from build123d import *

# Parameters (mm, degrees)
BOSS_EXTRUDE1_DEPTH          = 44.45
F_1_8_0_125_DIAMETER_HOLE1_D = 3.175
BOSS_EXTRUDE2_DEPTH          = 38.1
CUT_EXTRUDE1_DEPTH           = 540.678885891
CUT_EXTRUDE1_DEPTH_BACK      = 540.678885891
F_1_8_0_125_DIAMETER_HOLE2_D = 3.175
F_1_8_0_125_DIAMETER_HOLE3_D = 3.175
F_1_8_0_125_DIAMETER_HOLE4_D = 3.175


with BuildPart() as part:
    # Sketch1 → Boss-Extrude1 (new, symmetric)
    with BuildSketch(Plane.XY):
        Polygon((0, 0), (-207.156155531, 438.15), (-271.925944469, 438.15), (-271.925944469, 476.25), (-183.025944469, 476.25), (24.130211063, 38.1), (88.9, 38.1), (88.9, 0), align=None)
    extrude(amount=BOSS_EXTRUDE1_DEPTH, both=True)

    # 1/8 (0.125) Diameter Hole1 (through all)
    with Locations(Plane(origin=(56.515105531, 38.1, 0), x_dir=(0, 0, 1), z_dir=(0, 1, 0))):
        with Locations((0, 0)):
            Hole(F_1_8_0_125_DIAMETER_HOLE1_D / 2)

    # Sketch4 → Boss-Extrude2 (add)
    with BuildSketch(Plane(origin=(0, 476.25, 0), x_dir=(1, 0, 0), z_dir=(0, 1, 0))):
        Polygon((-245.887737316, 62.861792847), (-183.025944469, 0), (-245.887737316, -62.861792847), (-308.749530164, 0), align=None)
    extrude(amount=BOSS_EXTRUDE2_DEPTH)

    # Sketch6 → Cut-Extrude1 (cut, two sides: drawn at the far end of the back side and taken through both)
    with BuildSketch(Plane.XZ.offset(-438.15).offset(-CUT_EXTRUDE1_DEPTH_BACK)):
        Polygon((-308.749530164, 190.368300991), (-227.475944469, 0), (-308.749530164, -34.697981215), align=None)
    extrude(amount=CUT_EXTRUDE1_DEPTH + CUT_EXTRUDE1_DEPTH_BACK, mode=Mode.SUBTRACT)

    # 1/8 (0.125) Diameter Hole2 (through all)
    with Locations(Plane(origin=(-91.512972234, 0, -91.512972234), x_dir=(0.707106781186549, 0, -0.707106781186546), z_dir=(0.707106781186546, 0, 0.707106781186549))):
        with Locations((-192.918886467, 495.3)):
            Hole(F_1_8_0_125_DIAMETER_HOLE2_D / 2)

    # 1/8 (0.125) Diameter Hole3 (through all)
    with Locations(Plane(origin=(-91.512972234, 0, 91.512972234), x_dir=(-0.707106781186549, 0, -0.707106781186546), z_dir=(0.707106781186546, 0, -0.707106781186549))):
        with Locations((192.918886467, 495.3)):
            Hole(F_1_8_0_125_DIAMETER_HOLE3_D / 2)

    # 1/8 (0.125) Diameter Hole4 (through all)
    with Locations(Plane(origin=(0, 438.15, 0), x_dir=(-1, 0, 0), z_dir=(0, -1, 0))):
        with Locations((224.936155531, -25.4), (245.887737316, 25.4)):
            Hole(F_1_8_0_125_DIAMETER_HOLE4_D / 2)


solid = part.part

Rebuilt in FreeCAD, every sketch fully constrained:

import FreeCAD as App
import Part
import Sketcher
Q = App.Units.Quantity

doc = App.newDocument("Part")
params = doc.addObject("Spreadsheet::Sheet", "Params")
for row, (alias, value) in enumerate([
    ("sketch1_width", "3.5 in"),
    ("sketch1_height", "1.5 in"),
    ("pad1_length", "3.5 in"),
    ("sketch2_diameter", "0.125 in"),
    ("hole_diameter", "0.125 in"),
    ("sketch3_length", "3.5 in"),
    ("pad2_length", "1.5 in"),
    ("sketch5_diameter", "0.125 in"),
    ("hole2_diameter", "0.125 in"),
    ("sketch6_diameter", "0.125 in"),
    ("hole3_diameter", "0.125 in"),
    ("sketch7_diameter", "0.125 in"),
    ("hole4_diameter", "0.125 in"),
], start=1):
    params.set(f"A{row}", alias)
    params.set(f"B{row}", "=" + value)
    params.setAlias(f"B{row}", alias)

body = doc.addObject("PartDesign::Body", "Body")

sketch1 = body.newObject("Sketcher::SketchObject", "Sketch")
sketch1.AttachmentSupport = (doc.getObject("XY_Plane"), [""])
sketch1.MapMode = "FlatFace"
sketch1.addGeometry([
    Part.LineSegment(App.Vector(-207, 438, 0), App.Vector(0, 0, 0)),
    Part.LineSegment(App.Vector(0, 0, 0), App.Vector(89, 0, 0)),
    Part.LineSegment(App.Vector(89, 0, 0), App.Vector(89, 38, 0)),
    Part.LineSegment(App.Vector(89, 38, 0), App.Vector(24, 38, 0)),
    Part.LineSegment(App.Vector(24, 38, 0), App.Vector(-183, 476, 0)),
    Part.LineSegment(App.Vector(-183, 476, 0), App.Vector(-272, 476, 0)),
    Part.LineSegment(App.Vector(-272, 476, 0), App.Vector(-272, 438, 0)),
    Part.LineSegment(App.Vector(-272, 438, 0), App.Vector(-207, 438, 0)),
], False)
sketch1.addConstraint([
    Sketcher.Constraint("Coincident", 0, 2, 1, 1),
    Sketcher.Constraint("Coincident", 1, 2, 2, 1),
    Sketcher.Constraint("Coincident", 2, 2, 3, 1),
    Sketcher.Constraint("Coincident", 3, 2, 4, 1),
    Sketcher.Constraint("Coincident", 4, 2, 5, 1),
    Sketcher.Constraint("Coincident", 5, 2, 6, 1),
    Sketcher.Constraint("Coincident", 6, 2, 7, 1),
    Sketcher.Constraint("Coincident", 7, 2, 0, 1),
    Sketcher.Constraint("Horizontal", 1),
    Sketcher.Constraint("Vertical", 2),
    Sketcher.Constraint("Horizontal", 3),
    Sketcher.Constraint("Horizontal", 5),
    Sketcher.Constraint("Vertical", 6),
    Sketcher.Constraint("Horizontal", 7),
    Sketcher.Constraint("Coincident", 0, 2, -1, 1),
    Sketcher.Constraint("Parallel", 0, 4),
    Sketcher.Constraint("Equal", 1, 5),
    Sketcher.Constraint("Equal", 3, 7),
    Sketcher.Constraint("DistanceX", 1, 1, 1, 2, Q("3.5 in")),
    Sketcher.Constraint("DistanceY", 2, 1, 2, 2, Q("1.5 in")),
    Sketcher.Constraint("DistanceY", -1, 1, 4, 2, Q("18.75 in")),
    Sketcher.Constraint("DistanceX", 3, 2, 3, 1, Q("64.769789 mm")),
    Sketcher.Constraint("Distance", 0, Q("484.653583 mm")),
])
sketch1.setExpression("Constraints[18]", "Params.sketch1_width")
sketch1.setExpression("Constraints[19]", "Params.sketch1_height")
pad1 = body.newObject("PartDesign::Pad", "Pad")
pad1.Profile = sketch1
pad1.setExpression("Length", "Params.pad1_length")
pad1.Midplane = True

sketch2 = body.newObject("Sketcher::SketchObject", "Sketch001")
sketch2.AttachmentSupport = (doc.getObject("XZ_Plane"), [""])
sketch2.MapMode = "FlatFace"
sketch2.AttachmentOffset = App.Placement(App.Vector(0, 0, -1.5 * 25.4), App.Rotation())
sketch2.addGeometry(Part.Circle(App.Vector(56.5, 0, 0), App.Vector(0, 0, 1), 1.6), False)
sketch2.addConstraint([
    Sketcher.Constraint("PointOnObject", 0, 3, -1),
    Sketcher.Constraint("Diameter", 0, Q("0.125 in")),
    Sketcher.Constraint("DistanceX", -1, 1, 0, 3, Q("56.515106 mm")),
])
sketch2.setExpression("Constraints[1]", "Params.sketch2_diameter")
doc.recompute()
hole = body.newObject("PartDesign::Hole", "Hole")
hole.Profile = sketch2
hole.ThreadType = "None"
hole.setExpression("Diameter", "Params.hole_diameter")
hole.DepthType = "ThroughAll"
hole.Reversed = True

sketch3 = body.newObject("Sketcher::SketchObject", "Sketch002")
sketch3.AttachmentSupport = (doc.getObject("XZ_Plane"), [""])
sketch3.MapMode = "FlatFace"
sketch3.AttachmentOffset = App.Placement(App.Vector(0, 0, -18.75 * 25.4), App.Rotation())
sketch3.addGeometry([
    Part.LineSegment(App.Vector(-183, 0, 0), App.Vector(-246, -63, 0)),
    Part.LineSegment(App.Vector(-246, -63, 0), App.Vector(-309, 0, 0)),
    Part.LineSegment(App.Vector(-309, 0, 0), App.Vector(-246, 63, 0)),
    Part.LineSegment(App.Vector(-246, 63, 0), App.Vector(-183, 0, 0)),
], False)
sketch3.addConstraint([
    Sketcher.Constraint("Coincident", 0, 2, 1, 1),
    Sketcher.Constraint("Coincident", 1, 2, 2, 1),
    Sketcher.Constraint("Coincident", 2, 2, 3, 1),
    Sketcher.Constraint("Coincident", 3, 2, 0, 1),
    Sketcher.Constraint("Symmetric", 0, 2, 2, 2, -1),
    Sketcher.Constraint("PointOnObject", 1, 2, -1),
    Sketcher.Constraint("PointOnObject", 3, 2, -1),
    Sketcher.Constraint("Perpendicular", 0, 1),
    Sketcher.Constraint("Perpendicular", 1, 2),
    Sketcher.Constraint("Distance", 0, Q("3.5 in")),
    Sketcher.Constraint("DistanceX", 1, 2, -1, 1, Q("308.74953 mm")),
])
sketch3.setExpression("Constraints[9]", "Params.sketch3_length")
pad2 = body.newObject("PartDesign::Pad", "Pad001")
pad2.Profile = sketch3
pad2.setExpression("Length", "Params.pad2_length")
pad2.Reversed = True

sketch4 = body.newObject("Sketcher::SketchObject", "Sketch003")
sketch4.AttachmentSupport = (doc.getObject("XZ_Plane"), [""])
sketch4.MapMode = "FlatFace"
sketch4.AttachmentOffset = App.Placement(App.Vector(0, 0, -17.25 * 25.4), App.Rotation())
sketch4.addGeometry([
    Part.LineSegment(App.Vector(-227, 0, 0), App.Vector(-309, 190, 0)),
    Part.LineSegment(App.Vector(-309, 190, 0), App.Vector(-309, -35, 0)),
    Part.LineSegment(App.Vector(-309, -35, 0), App.Vector(-227, 0, 0)),
], False)
sketch4.addConstraint([
    Sketcher.Constraint("Coincident", 0, 2, 1, 1),
    Sketcher.Constraint("Coincident", 1, 2, 2, 1),
    Sketcher.Constraint("Coincident", 2, 2, 0, 1),
    Sketcher.Constraint("Vertical", 1),
    Sketcher.Constraint("PointOnObject", 2, 2, -1),
    Sketcher.Constraint("Perpendicular", 0, 2),
    Sketcher.Constraint("DistanceY", -1, 1, 0, 2, Q("190.368301 mm")),
    Sketcher.Constraint("Distance", 0, Q("206.991511 mm")),
    Sketcher.Constraint("DistanceX", 0, 2, -1, 1, Q("308.74953 mm")),
])
pocket1 = body.newObject("PartDesign::Pocket", "Pocket")
pocket1.Profile = sketch4
pocket1.Type = "ThroughAll"
pocket1.Midplane = True

sketch5 = body.newObject("Sketcher::SketchObject", "Sketch004")
sketch5.Placement = App.Placement(App.Vector(-91.512972, 0, -91.512972), App.Rotation(App.Vector(0.707106781, 0, -0.707106781), App.Vector(0, 0.999999999, 0), App.Vector(0.707106781, 0, 0.707106781), "ZXY"))
sketch5.addGeometry(Part.Circle(App.Vector(-192.9, 495.3, 0), App.Vector(0, 0, 1), 1.6), False)
sketch5.addConstraint([
    Sketcher.Constraint("Diameter", 0, Q("0.125 in")),
    Sketcher.Constraint("DistanceY", -1, 1, 0, 3, Q("19.5 in")),
    Sketcher.Constraint("DistanceX", 0, 3, -1, 1, Q("192.918886 mm")),
])
sketch5.setExpression("Constraints[0]", "Params.sketch5_diameter")
doc.recompute()
hole2 = body.newObject("PartDesign::Hole", "Hole001")
hole2.Profile = sketch5
hole2.ThreadType = "None"
hole2.setExpression("Diameter", "Params.hole2_diameter")
hole2.DepthType = "ThroughAll"

sketch6 = body.newObject("Sketcher::SketchObject", "Sketch005")
sketch6.Placement = App.Placement(App.Vector(-91.512972, 0, 91.512972), App.Rotation(App.Vector(-0.707106781, 0, -0.707106781), App.Vector(0, 0.999999999, 0), App.Vector(0.707106781, 0, -0.707106781), "ZXY"))
sketch6.addGeometry(Part.Circle(App.Vector(192.9, 495.3, 0), App.Vector(0, 0, 1), 1.6), False)
sketch6.addConstraint([
    Sketcher.Constraint("Diameter", 0, Q("0.125 in")),
    Sketcher.Constraint("DistanceY", -1, 1, 0, 3, Q("19.5 in")),
    Sketcher.Constraint("DistanceX", -1, 1, 0, 3, Q("192.918886 mm")),
])
sketch6.setExpression("Constraints[0]", "Params.sketch6_diameter")
doc.recompute()
hole3 = body.newObject("PartDesign::Hole", "Hole002")
hole3.Profile = sketch6
hole3.ThreadType = "None"
hole3.setExpression("Diameter", "Params.hole3_diameter")
hole3.DepthType = "ThroughAll"

sketch7 = body.newObject("Sketcher::SketchObject", "Sketch006")
sketch7.AttachmentSupport = (doc.getObject("XZ_Plane"), [""])
sketch7.MapMode = "FlatFace"
sketch7.AttachmentOffset = App.Placement(App.Vector(0, 0, -17.25 * 25.4), App.Rotation())
sketch7.addGeometry([
    Part.Circle(App.Vector(-224.9, 25.4, 0), App.Vector(0, 0, 1), 1.6),
    Part.Circle(App.Vector(-245.9, -25.4, 0), App.Vector(0, 0, 1), 1.6),
], False)
sketch7.addConstraint([
    Sketcher.Constraint("Equal", 0, 1),
    Sketcher.Constraint("Diameter", 0, Q("0.125 in")),
    Sketcher.Constraint("DistanceY", -1, 1, 0, 3, Q("1 in")),
    Sketcher.Constraint("DistanceY", 1, 3, -1, 1, Q("1 in")),
    Sketcher.Constraint("DistanceX", 1, 3, 0, 3, Q("20.951582 mm")),
    Sketcher.Constraint("DistanceX", 0, 3, -1, 1, Q("224.936156 mm")),
])
sketch7.setExpression("Constraints[1]", "Params.sketch7_diameter")
doc.recompute()
hole4 = body.newObject("PartDesign::Hole", "Hole003")
hole4.Profile = sketch7
hole4.ThreadType = "None"
hole4.setExpression("Diameter", "Params.hole4_diameter")
hole4.DepthType = "ThroughAll"

doc.recompute()
